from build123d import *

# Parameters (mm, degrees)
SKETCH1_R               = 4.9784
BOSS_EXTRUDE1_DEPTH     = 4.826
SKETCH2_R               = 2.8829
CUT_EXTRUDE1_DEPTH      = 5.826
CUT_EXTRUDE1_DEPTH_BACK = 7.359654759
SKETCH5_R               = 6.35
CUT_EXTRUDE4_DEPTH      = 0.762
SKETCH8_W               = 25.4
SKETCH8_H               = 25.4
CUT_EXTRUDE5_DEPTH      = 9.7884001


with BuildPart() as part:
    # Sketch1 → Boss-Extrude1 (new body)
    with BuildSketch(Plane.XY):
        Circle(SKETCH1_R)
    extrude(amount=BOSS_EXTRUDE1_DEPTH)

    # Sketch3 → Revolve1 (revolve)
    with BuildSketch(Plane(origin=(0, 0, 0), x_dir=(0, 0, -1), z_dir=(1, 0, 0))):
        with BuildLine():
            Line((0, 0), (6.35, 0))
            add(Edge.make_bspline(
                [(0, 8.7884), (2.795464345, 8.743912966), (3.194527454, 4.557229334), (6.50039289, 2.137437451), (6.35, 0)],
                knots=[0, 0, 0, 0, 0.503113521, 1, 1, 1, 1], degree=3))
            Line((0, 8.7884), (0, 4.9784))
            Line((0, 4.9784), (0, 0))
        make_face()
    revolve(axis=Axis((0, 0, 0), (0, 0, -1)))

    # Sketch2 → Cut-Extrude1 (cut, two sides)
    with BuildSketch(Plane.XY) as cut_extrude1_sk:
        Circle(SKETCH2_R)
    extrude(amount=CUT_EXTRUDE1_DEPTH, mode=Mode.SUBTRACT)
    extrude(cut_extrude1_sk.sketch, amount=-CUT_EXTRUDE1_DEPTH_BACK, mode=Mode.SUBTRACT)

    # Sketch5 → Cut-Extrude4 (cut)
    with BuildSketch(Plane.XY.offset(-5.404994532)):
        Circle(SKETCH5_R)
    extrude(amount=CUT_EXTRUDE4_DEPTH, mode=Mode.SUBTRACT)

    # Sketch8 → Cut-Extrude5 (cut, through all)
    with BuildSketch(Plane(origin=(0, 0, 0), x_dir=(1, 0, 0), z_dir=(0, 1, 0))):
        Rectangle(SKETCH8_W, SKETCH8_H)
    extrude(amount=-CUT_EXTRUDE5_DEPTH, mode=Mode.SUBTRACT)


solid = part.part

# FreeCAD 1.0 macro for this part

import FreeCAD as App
import Part
import Sketcher
Q = App.Units.Quantity


def add_polygon(sketch, points):
    """Adds a closed chain of lines whose ends are joined by coincident constraints."""
    first, n = sketch.GeometryCount, len(points)
    for a, b in zip(points, points[1:] + points[:1]):
        sketch.addGeometry(Part.LineSegment(App.Vector(*a, 0), App.Vector(*b, 0)), False)
    for i in range(n):
        sketch.addConstraint(Sketcher.Constraint("Coincident", first + i, 2, first + (i + 1) % n, 1))

doc = App.newDocument("Part")
body = doc.addObject("PartDesign::Body", "Body")

# Sketch on XY plane
sketch1 = body.newObject("Sketcher::SketchObject", "Sketch")
sketch1.AttachmentSupport = (doc.getObject("XY_Plane"), [""])
sketch1.MapMode = "FlatFace"
sketch1.addGeometry(Part.Circle(App.Vector(0, 0, 0), App.Vector(0, 0, 1), 5), False)
sketch1.addConstraint(Sketcher.Constraint("Coincident", 0, 3, -1, 1))
sketch1.addConstraint(Sketcher.Constraint("Diameter", 0, Q("0.392 in")))
pad1 = body.newObject("PartDesign::Pad", "Pad")
pad1.Profile = sketch1
pad1.Length = Q("0.19 in")

# Sketch on YZ plane
sketch2 = body.newObject("Sketcher::SketchObject", "Sketch001")
sketch2.AttachmentSupport = (doc.getObject("YZ_Plane"), [""])
sketch2.MapMode = "FlatFace"
sketch2.addGeometry(Part.LineSegment(App.Vector(0, 0, 0), App.Vector(0, -6.35, 0)), False)
sketch2.addGeometry(Part.BSplineCurve([App.Vector(8.7884, 0, 0), App.Vector(8.743913, -2.795464, 0), App.Vector(4.557229, -3.194527, 0), App.Vector(2.137437, -6.500393, 0), App.Vector(0, -6.35, 0)], [4, 1, 4], [0, 0.503113521, 1], False, 3, [1, 1, 1, 1, 1], False), False)
sketch2.addGeometry(Part.LineSegment(App.Vector(8.7884, 0, 0), App.Vector(0, 0, 0)), False)
sketch2.addConstraint(Sketcher.Constraint("Block", 1))
sketch2.addConstraint(Sketcher.Constraint("Coincident", 0, 2, 1, 2))
sketch2.addConstraint(Sketcher.Constraint("Coincident", 1, 1, 2, 1))
sketch2.addConstraint(Sketcher.Constraint("Coincident", 2, 2, 0, 1))
sketch2.addConstraint(Sketcher.Constraint("Vertical", 0))
sketch2.addConstraint(Sketcher.Constraint("Horizontal", 2))
revolution = body.newObject("PartDesign::Revolution", "Revolution")
revolution.Profile = sketch2
revolution.ReferenceAxis = (sketch2, ["V_Axis"])
revolution.Angle = 360

# Sketch on XY plane
sketch3 = body.newObject("Sketcher::SketchObject", "Sketch002")
sketch3.AttachmentSupport = (doc.getObject("XY_Plane"), [""])
sketch3.MapMode = "FlatFace"
sketch3.addGeometry(Part.Circle(App.Vector(0, 0, 0), App.Vector(0, 0, 1), 2.9), False)
sketch3.addConstraint(Sketcher.Constraint("Coincident", 0, 3, -1, 1))
sketch3.addConstraint(Sketcher.Constraint("Diameter", 0, Q("0.227 in")))
pocket1 = body.newObject("PartDesign::Pocket", "Pocket")
pocket1.Profile = sketch3
pocket1.Type = "ThroughAll"
pocket1.Midplane = True

# Sketch on XY plane
sketch4 = body.newObject("Sketcher::SketchObject", "Sketch003")
sketch4.AttachmentSupport = (doc.getObject("XY_Plane"), [""])
sketch4.MapMode = "FlatFace"
sketch4.AttachmentOffset = App.Placement(App.Vector(0, 0, -5.404995), App.Rotation())
sketch4.addGeometry(Part.Circle(App.Vector(0, 0, 0), App.Vector(0, 0, 1), 6), False)
sketch4.addConstraint(Sketcher.Constraint("Coincident", 0, 3, -1, 1))
sketch4.addConstraint(Sketcher.Constraint("Diameter", 0, Q("0.5 in")))
pocket2 = body.newObject("PartDesign::Pocket", "Pocket001")
pocket2.Profile = sketch4
pocket2.Length = Q("0.03 in")
pocket2.Reversed = True

# Sketch on XZ plane
sketch5 = body.newObject("Sketcher::SketchObject", "Sketch004")
sketch5.AttachmentSupport = (doc.getObject("XZ_Plane"), [""])
sketch5.MapMode = "FlatFace"
add_polygon(sketch5, [(-13, -13), (-13, 13), (13, 13), (13, -13)])  # lines 0-3
sketch5.addConstraint(Sketcher.Constraint("Vertical", 0))
sketch5.addConstraint(Sketcher.Constraint("Horizontal", 1))
sketch5.addConstraint(Sketcher.Constraint("Vertical", 2))
sketch5.addConstraint(Sketcher.Constraint("Horizontal", 3))
sketch5.addConstraint(Sketcher.Constraint("Symmetric", 0, 2, 2, 2, -1, 1))
sketch5.addConstraint(Sketcher.Constraint("Equal", 3, 0))
sketch5.addConstraint(Sketcher.Constraint("DistanceX", 1, 1, 1, 2, Q("1 in")))
pocket3 = body.newObject("PartDesign::Pocket", "Pocket002")
pocket3.Profile = sketch5
pocket3.Type = "ThroughAll"
pocket3.Reversed = True

doc.recompute()
